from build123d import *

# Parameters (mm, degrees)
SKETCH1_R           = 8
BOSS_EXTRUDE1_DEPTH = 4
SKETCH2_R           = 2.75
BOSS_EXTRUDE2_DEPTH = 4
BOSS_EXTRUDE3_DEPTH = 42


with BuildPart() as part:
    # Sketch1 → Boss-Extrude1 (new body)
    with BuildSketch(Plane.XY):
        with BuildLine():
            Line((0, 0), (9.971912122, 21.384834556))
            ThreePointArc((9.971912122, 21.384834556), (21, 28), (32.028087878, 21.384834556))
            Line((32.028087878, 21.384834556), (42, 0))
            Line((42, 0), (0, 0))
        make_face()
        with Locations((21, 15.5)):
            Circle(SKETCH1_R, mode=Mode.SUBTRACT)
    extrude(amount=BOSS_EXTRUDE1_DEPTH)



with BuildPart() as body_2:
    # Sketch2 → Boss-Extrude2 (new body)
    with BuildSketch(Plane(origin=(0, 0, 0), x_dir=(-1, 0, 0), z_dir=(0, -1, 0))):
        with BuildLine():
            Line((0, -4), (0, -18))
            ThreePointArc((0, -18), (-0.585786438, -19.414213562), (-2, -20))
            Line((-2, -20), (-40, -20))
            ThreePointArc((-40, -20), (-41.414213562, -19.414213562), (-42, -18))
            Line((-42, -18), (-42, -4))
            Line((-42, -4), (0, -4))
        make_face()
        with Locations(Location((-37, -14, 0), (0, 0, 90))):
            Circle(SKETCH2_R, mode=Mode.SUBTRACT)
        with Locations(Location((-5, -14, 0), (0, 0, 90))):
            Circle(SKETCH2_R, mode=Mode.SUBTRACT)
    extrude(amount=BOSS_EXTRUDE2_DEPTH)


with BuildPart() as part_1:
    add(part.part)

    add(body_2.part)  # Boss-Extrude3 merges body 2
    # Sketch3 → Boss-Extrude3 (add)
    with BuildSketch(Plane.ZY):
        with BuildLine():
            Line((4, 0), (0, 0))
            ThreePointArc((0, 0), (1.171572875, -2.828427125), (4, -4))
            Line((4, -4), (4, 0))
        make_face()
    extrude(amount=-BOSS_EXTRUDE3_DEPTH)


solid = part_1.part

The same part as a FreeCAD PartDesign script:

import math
import FreeCAD as App
import Part
import Sketcher
Q = App.Units.Quantity

doc = App.newDocument("Part")
body = doc.addObject("PartDesign::Body", "Body")

# Sketch on XY plane
sketch1 = doc.addObject("Sketcher::SketchObject", "Sketch")
body.addObject(sketch1)
sketch1.AttachmentSupport = (doc.XY_Plane, [""])
sketch1.MapMode = "FlatFace"
sketch1.addGeometry([
    Part.LineSegment(App.Vector(9.971912, 21.384835, 0), App.Vector(0, 0, 0)),  # 0
    Part.LineSegment(App.Vector(0, 0, 0), App.Vector(42, 0, 0)),  # 1
    Part.LineSegment(App.Vector(42, 0, 0), App.Vector(32.028088, 21.384835, 0)),  # 2
    Part.ArcOfCircle(Part.Circle(App.Vector(21, 15.5, 0), App.Vector(0, 0, 1), 12.5), math.radians(28.085379), math.radians(151.914621)),  # 3
    Part.Circle(App.Vector(21, 15.5, 0), App.Vector(0, 0, 1), 8),  # 4
], False)
sketch1.addConstraint([
    Sketcher.Constraint("Coincident", 0, 2, 1, 1),
    Sketcher.Constraint("Coincident", 1, 2, 2, 1),
    Sketcher.Constraint("Coincident", 2, 2, 3, 1),
    Sketcher.Constraint("Coincident", 3, 2, 0, 1),
    Sketcher.Constraint("Horizontal", 1),
    Sketcher.Constraint("Coincident", 0, 2, -1, 1),
    Sketcher.Constraint("Coincident", 4, 3, 3, 3),
    Sketcher.Constraint("Horizontal", 2, 2, 3, 2),
    Sketcher.Constraint("Equal", 0, 2),
    Sketcher.Constraint("Diameter", 4, 16.0),
    Sketcher.Constraint("Radius", 3, 12.5),
    Sketcher.Constraint("DistanceX", 1, 1, 1, 2, 42.0),
    Sketcher.Constraint("Angle", 0, Q("-115 deg")),
    Sketcher.Constraint("DistanceY", -1, 1, 3, 3, 15.5),
])
pad1 = doc.addObject("PartDesign::Pad", "Pad")
body.addObject(pad1)
pad1.Profile = sketch1
pad1.Length = 4
body2 = doc.addObject("PartDesign::Body", "Body001")

# Sketch on XZ plane
sketch2 = doc.addObject("Sketcher::SketchObject", "Sketch001")
body2.addObject(sketch2)
sketch2.AttachmentSupport = (doc.getObject("XZ_Plane001"), [""])
sketch2.MapMode = "FlatFace"
sketch2.addGeometry([
    Part.LineSegment(App.Vector(0, 18, 0), App.Vector(0, 4, 0)),  # 0
    Part.LineSegment(App.Vector(0, 4, 0), App.Vector(42, 4, 0)),  # 1
    Part.LineSegment(App.Vector(42, 4, 0), App.Vector(42, 18, 0)),  # 2
    Part.ArcOfCircle(Part.Circle(App.Vector(40, 18, 0), App.Vector(0, 0, 1), 2), math.radians(0), math.radians(90)),  # 3
    Part.LineSegment(App.Vector(40, 20, 0), App.Vector(2, 20, 0)),  # 4
    Part.ArcOfCircle(Part.Circle(App.Vector(2, 18, 0), App.Vector(0, 0, 1), 2), math.radians(90), math.radians(180)),  # 5
    Part.Circle(App.Vector(5, 14, 0), App.Vector(0, 0, 1), 2.8),  # 6
    Part.Circle(App.Vector(37, 14, 0), App.Vector(0, 0, 1), 2.8),  # 7
], False)
sketch2.addConstraint([
    Sketcher.Constraint("Coincident", 0, 2, 1, 1),
    Sketcher.Constraint("Coincident", 1, 2, 2, 1),
    Sketcher.Constraint("Tangent", 2, 2, 3, 1),
    Sketcher.Constraint("Tangent", 3, 2, 4, 1),
    Sketcher.Constraint("Tangent", 4, 2, 5, 1),
    Sketcher.Constraint("Tangent", 5, 2, 0, 1),
    Sketcher.Constraint("Vertical", 0),
    Sketcher.Constraint("Horizontal", 1),
    Sketcher.Constraint("Vertical", 2),
    Sketcher.Constraint("Horizontal", 4),
    Sketcher.Constraint("Equal", 3, 5),
    Sketcher.Constraint("Equal", 6, 7),
    Sketcher.Constraint("PointOnObject", 0, 2, -2),
    Sketcher.Constraint("Horizontal", 6, 3, 7, 3),
    Sketcher.Constraint("Radius", 3, 2.0),
    Sketcher.Constraint("Diameter", 6, 5.5),
    Sketcher.Constraint("DistanceX", 1, 1, 1, 2, 42.0),
    Sketcher.Constraint("DistanceY", 0, 2, 0, 1, 14.0),
    Sketcher.Constraint("DistanceY", -1, 1, 3, 3, 18.0),
    Sketcher.Constraint("DistanceX", -1, 1, 6, 3, 5.0),
    Sketcher.Constraint("DistanceY", -1, 1, 6, 3, 14.0),
    Sketcher.Constraint("DistanceX", -1, 1, 7, 3, 37.0),
])
pad2 = doc.addObject("PartDesign::Pad", "Pad001")
body2.addObject(pad2)
pad2.Profile = sketch2
pad2.Length = 4
body.AllowCompound = True
doc.recompute()

boolean = doc.addObject("PartDesign::Boolean", "Boolean")
body.addObject(boolean)
boolean.Type = "Fuse"
boolean.addObjects([body2])

# Sketch on YZ plane
sketch3 = doc.addObject("Sketcher::SketchObject", "Sketch002")
body.addObject(sketch3)
sketch3.AttachmentSupport = (doc.YZ_Plane, [""])
sketch3.MapMode = "FlatFace"
sketch3.addGeometry([
    Part.LineSegment(App.Vector(0, 4, 0), App.Vector(0, 0, 0)),
    Part.ArcOfCircle(Part.Circle(App.Vector(0, 4, 0), App.Vector(0, 0, 1), 4), math.radians(180), math.radians(270)),
    Part.LineSegment(App.Vector(-4, 4, 0), App.Vector(0, 4, 0)),
], False)
sketch3.addConstraint([
    Sketcher.Constraint("Coincident", 0, 2, 1, 2),
    Sketcher.Constraint("Coincident", 1, 1, 2, 1),
    Sketcher.Constraint("Coincident", 2, 2, 0, 1),
    Sketcher.Constraint("Vertical", 0),
    Sketcher.Constraint("Horizontal", 2),
    Sketcher.Constraint("Coincident", 0, 2, -1, 1),
    Sketcher.Constraint("Coincident", 2, 2, 1, 3),
    Sketcher.Constraint("Radius", 1, 4.0),
])
pad3 = doc.addObject("PartDesign::Pad", "Pad002")
body.addObject(pad3)
pad3.Profile = sketch3
pad3.Length = 42

doc.recompute()
